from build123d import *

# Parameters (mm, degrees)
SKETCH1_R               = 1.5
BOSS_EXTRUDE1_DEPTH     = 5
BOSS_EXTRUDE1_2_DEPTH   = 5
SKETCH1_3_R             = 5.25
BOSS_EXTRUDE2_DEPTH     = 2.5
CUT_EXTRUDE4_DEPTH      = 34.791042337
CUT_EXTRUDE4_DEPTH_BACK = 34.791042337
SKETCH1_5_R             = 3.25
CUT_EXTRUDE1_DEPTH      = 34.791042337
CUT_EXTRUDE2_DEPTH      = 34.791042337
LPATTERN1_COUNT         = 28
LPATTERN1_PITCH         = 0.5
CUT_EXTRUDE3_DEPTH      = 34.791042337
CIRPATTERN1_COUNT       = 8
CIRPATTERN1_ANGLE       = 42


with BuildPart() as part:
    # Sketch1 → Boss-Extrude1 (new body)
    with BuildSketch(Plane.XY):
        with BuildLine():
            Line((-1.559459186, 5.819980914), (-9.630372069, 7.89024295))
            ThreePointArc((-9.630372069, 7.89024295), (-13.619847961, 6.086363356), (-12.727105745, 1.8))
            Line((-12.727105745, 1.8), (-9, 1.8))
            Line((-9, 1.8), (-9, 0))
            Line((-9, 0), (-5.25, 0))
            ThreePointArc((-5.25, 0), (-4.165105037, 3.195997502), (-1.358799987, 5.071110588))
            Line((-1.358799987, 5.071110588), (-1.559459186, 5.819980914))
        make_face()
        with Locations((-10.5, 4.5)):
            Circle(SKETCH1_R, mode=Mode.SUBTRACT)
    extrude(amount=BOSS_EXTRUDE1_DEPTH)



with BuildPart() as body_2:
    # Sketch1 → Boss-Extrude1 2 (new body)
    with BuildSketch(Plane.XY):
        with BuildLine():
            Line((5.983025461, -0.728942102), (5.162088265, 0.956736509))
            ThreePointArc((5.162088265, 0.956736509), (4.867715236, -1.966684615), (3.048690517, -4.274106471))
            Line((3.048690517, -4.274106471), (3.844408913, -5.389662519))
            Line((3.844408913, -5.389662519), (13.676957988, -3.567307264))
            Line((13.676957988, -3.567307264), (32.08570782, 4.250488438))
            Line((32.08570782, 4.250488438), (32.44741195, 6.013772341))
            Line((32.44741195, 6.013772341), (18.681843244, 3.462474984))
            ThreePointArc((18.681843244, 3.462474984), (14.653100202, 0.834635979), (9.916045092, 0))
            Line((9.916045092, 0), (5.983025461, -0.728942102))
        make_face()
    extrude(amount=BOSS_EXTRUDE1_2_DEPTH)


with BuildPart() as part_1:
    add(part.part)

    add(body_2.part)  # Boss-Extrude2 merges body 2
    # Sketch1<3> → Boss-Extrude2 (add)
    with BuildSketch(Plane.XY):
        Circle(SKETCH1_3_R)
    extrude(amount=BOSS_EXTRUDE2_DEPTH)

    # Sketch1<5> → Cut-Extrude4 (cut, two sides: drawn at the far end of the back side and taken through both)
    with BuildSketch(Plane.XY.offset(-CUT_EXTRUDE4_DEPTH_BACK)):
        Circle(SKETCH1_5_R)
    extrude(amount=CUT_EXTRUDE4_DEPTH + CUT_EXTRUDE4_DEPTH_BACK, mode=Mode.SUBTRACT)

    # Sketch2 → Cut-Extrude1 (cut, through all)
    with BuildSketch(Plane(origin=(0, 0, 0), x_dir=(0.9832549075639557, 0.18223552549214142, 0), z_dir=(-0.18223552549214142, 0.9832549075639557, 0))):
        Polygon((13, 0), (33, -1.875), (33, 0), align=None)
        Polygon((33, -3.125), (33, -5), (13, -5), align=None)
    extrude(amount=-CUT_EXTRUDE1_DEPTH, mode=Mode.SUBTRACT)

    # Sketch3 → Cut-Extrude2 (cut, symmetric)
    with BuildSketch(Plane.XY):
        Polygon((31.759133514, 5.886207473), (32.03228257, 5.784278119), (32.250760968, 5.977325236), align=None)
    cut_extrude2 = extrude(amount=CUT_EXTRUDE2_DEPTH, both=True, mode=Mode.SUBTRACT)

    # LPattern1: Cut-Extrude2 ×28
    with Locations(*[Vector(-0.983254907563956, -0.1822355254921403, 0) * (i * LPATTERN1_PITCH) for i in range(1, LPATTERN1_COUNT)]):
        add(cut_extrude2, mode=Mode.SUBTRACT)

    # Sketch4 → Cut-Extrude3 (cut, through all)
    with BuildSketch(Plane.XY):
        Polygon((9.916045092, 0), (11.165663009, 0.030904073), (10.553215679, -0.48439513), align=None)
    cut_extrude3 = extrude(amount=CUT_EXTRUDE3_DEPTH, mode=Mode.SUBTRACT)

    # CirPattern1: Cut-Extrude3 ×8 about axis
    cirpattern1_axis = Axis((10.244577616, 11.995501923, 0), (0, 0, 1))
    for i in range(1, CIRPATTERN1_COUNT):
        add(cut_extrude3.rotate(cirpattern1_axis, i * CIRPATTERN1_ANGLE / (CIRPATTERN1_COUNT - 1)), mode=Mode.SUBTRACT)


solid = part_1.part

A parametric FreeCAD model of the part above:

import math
import FreeCAD as App
import Part
import Sketcher
Q = App.Units.Quantity


def add_polygon(sketch, points):
    """Adds a closed chain of lines whose ends are joined by coincident constraints."""
    first, n = sketch.GeometryCount, len(points)
    for a, b in zip(points, points[1:] + points[:1]):
        sketch.addGeometry(Part.LineSegment(App.Vector(*a, 0), App.Vector(*b, 0)), False)
    for i in range(n):
        sketch.addConstraint(Sketcher.Constraint("Coincident", first + i, 2, first + (i + 1) % n, 1))

doc = App.newDocument("Part")
body = doc.addObject("PartDesign::Body", "Body")

# Sketch on XY plane
sketch1 = body.newObject("Sketcher::SketchObject", "Sketch")
sketch1.AttachmentSupport = (doc.getObject("XY_Plane"), [""])
sketch1.MapMode = "FlatFace"
sketch1.addGeometry(Part.LineSegment(App.Vector(-1.559459, 5.819981, 0), App.Vector(-9.630372, 7.890243, 0)), False)
sketch1.addGeometry(Part.ArcOfCircle(Part.Circle(App.Vector(-10.5, 4.5, 0), App.Vector(0, 0, 1), 3.5), math.radians(75.613295), math.radians(230.482347)), False)
sketch1.addGeometry(Part.LineSegment(App.Vector(-12.727106, 1.8, 0), App.Vector(-9, 1.8, 0)), False)
sketch1.addGeometry(Part.LineSegment(App.Vector(-9, 1.8, 0), App.Vector(-9, 0, 0)), False)
sketch1.addGeometry(Part.LineSegment(App.Vector(-9, 0, 0), App.Vector(-5.25, 0, 0)), False)
sketch1.addGeometry(Part.ArcOfCircle(Part.Circle(App.Vector(0, 0, 0), App.Vector(0, 0, 1), 5.25), math.radians(105), math.radians(180)), False)
sketch1.addGeometry(Part.LineSegment(App.Vector(-1.3588, 5.071111, 0), App.Vector(-1.559459, 5.819981, 0)), False)
sketch1.addGeometry(Part.Circle(App.Vector(-10.5, 4.5, 0), App.Vector(0, 0, 1), 1.5), False)
sketch1.addConstraint(Sketcher.Constraint("Tangent", 0, 2, 1, 1))
sketch1.addConstraint(Sketcher.Constraint("Coincident", 1, 2, 2, 1))
sketch1.addConstraint(Sketcher.Constraint("Coincident", 2, 2, 3, 1))
sketch1.addConstraint(Sketcher.Constraint("Coincident", 3, 2, 4, 1))
sketch1.addConstraint(Sketcher.Constraint("Coincident", 4, 2, 5, 2))
sketch1.addConstraint(Sketcher.Constraint("Coincident", 5, 1, 6, 1))
sketch1.addConstraint(Sketcher.Constraint("Coincident", 6, 2, 0, 1))
sketch1.addConstraint(Sketcher.Constraint("Horizontal", 2))
sketch1.addConstraint(Sketcher.Constraint("Vertical", 3))
sketch1.addConstraint(Sketcher.Constraint("Horizontal", 4))
sketch1.addConstraint(Sketcher.Constraint("Coincident", 5, 3, -1, 1))
sketch1.addConstraint(Sketcher.Constraint("Coincident", 7, 3, 1, 3))
sketch1.addConstraint(Sketcher.Constraint("PointOnObject", 3, 2, -1))
sketch1.addConstraint(Sketcher.Constraint("Diameter", 7, 3.0))
sketch1.addConstraint(Sketcher.Constraint("Radius", 1, 3.5))
sketch1.addConstraint(Sketcher.Constraint("Angle", 6, Q("105 deg")))
sketch1.addConstraint(Sketcher.Constraint("Radius", 5, 5.25))
sketch1.addConstraint(Sketcher.Constraint("DistanceY", 3, 2, 3, 1, 1.8))
sketch1.addConstraint(Sketcher.Constraint("DistanceX", 2, 2, -1, 1, 9.0))
sketch1.addConstraint(Sketcher.Constraint("DistanceX", 1, 3, -1, 1, 10.5))
sketch1.addConstraint(Sketcher.Constraint("DistanceY", -1, 1, 1, 3, 4.5))
sketch1.addConstraint(Sketcher.Constraint("DistanceX", 5, 1, -1, 1, 1.3588))
sketch1.addConstraint(Sketcher.Constraint("DistanceX", 6, 2, -1, 1, 1.559459))
pad1 = body.newObject("PartDesign::Pad", "Pad")
pad1.Profile = sketch1
pad1.Length = 5
body2 = doc.addObject("PartDesign::Body", "Body001")

# Sketch on XY plane
sketch2 = body2.newObject("Sketcher::SketchObject", "Sketch001")
sketch2.AttachmentSupport = (doc.getObject("XY_Plane001"), [""])
sketch2.MapMode = "FlatFace"
sketch2.addGeometry(Part.LineSegment(App.Vector(5.983025, -0.728942, 0), App.Vector(5.162088, 0.956737, 0)), False)
sketch2.addGeometry(Part.ArcOfCircle(Part.Circle(App.Vector(0, 0, 0), App.Vector(0, 0, 1), 5.25), math.radians(-54.5), math.radians(10.5)), False)
sketch2.addGeometry(Part.LineSegment(App.Vector(3.048691, -4.274106, 0), App.Vector(3.844409, -5.389663, 0)), False)
sketch2.addGeometry(Part.LineSegment(App.Vector(3.844409, -5.389663, 0), App.Vector(13.676958, -3.567307, 0)), False)
sketch2.addGeometry(Part.LineSegment(App.Vector(13.676958, -3.567307, 0), App.Vector(32.085708, 4.250488, 0)), False)
sketch2.addGeometry(Part.LineSegment(App.Vector(32.085708, 4.250488, 0), App.Vector(32.447412, 6.013772, 0)), False)
sketch2.addGeometry(Part.LineSegment(App.Vector(32.447412, 6.013772, 0), App.Vector(18.681843, 3.462475, 0)), False)
sketch2.addGeometry(Part.ArcOfCircle(Part.Circle(App.Vector(10.244578, 11.995502, 0), App.Vector(0, 0, 1), 12), math.radians(-91.568823), math.radians(-45.32331)), False)
sketch2.addGeometry(Part.LineSegment(App.Vector(9.916045, 0, 0), App.Vector(5.983025, -0.728942, 0)), False)
sketch2.addConstraint(Sketcher.Constraint("Coincident", 0, 2, 1, 2))
sketch2.addConstraint(Sketcher.Constraint("Coincident", 1, 1, 2, 1))
sketch2.addConstraint(Sketcher.Constraint("Coincident", 2, 2, 3, 1))
sketch2.addConstraint(Sketcher.Constraint("Coincident", 3, 2, 4, 1))
sketch2.addConstraint(Sketcher.Constraint("Coincident", 4, 2, 5, 1))
sketch2.addConstraint(Sketcher.Constraint("Coincident", 5, 2, 6, 1))
sketch2.addConstraint(Sketcher.Constraint("Coincident", 6, 2, 7, 2))
sketch2.addConstraint(Sketcher.Constraint("Coincident", 7, 1, 8, 1))
sketch2.addConstraint(Sketcher.Constraint("Coincident", 8, 2, 0, 1))
sketch2.addConstraint(Sketcher.Constraint("Coincident", 1, 3, -1, 1))
sketch2.addConstraint(Sketcher.Constraint("PointOnObject", 7, 1, -1))
sketch2.addConstraint(Sketcher.Constraint("Parallel", 3, 6))
sketch2.addConstraint(Sketcher.Constraint("Parallel", 6, 8))
sketch2.addConstraint(Sketcher.Constraint("Radius", 7, 12.0))
sketch2.addConstraint(Sketcher.Constraint("Radius", 1, 5.25))
sketch2.addConstraint(Sketcher.Constraint("Distance", 3, 10.0))
sketch2.addConstraint(Sketcher.Constraint("Distance", 4, 20.0))
sketch2.addConstraint(Sketcher.Constraint("Distance", 6, 14.0))
sketch2.addConstraint(Sketcher.Constraint("Distance", 8, 4.0))
sketch2.addConstraint(Sketcher.Constraint("Angle", 2, Q("-54.5 deg")))
sketch2.addConstraint(Sketcher.Constraint("Angle", 3, Q("10.5 deg")))
sketch2.addConstraint(Sketcher.Constraint("Distance", 5, 1.8))
sketch2.addConstraint(Sketcher.Constraint("DistanceY", -1, 1, 7, 3, 11.995502))
sketch2.addConstraint(Sketcher.Constraint("DistanceY", 2, 2, 0, 2, 6.346399))
sketch2.addConstraint(Sketcher.Constraint("DistanceY", 1, 1, 3, 2, 0.706799))
sketch2.addConstraint(Sketcher.Constraint("DistanceX", 2, 2, 4, 2, 28.241299))
sketch2.addConstraint(Sketcher.Constraint("DistanceX", 7, 1, 6, 2, 8.765798))
sketch2.addConstraint(Sketcher.Constraint("DistanceX", -1, 1, 0, 2, 5.162088))
pad2 = body2.newObject("PartDesign::Pad", "Pad001")
pad2.Profile = sketch2
pad2.Length = 5
body.AllowCompound = True
doc.recompute()

boolean = body.newObject("PartDesign::Boolean", "Boolean")
boolean.Type = "Fuse"
boolean.addObjects([body2])

# Sketch on XY plane
sketch3 = body.newObject("Sketcher::SketchObject", "Sketch002")
sketch3.AttachmentSupport = (doc.getObject("XY_Plane"), [""])
sketch3.MapMode = "FlatFace"
sketch3.addGeometry(Part.Circle(App.Vector(0, 0, 0), App.Vector(0, 0, 1), 5.25), False)
sketch3.addConstraint(Sketcher.Constraint("Coincident", 0, 3, -1, 1))
sketch3.addConstraint(Sketcher.Constraint("Diameter", 0, 10.5))
pad3 = body.newObject("PartDesign::Pad", "Pad002")
pad3.Profile = sketch3
pad3.Length = 2.5

# Sketch on XY plane
sketch4 = body.newObject("Sketcher::SketchObject", "Sketch003")
sketch4.AttachmentSupport = (doc.getObject("XY_Plane"), [""])
sketch4.MapMode = "FlatFace"
sketch4.addGeometry(Part.Circle(App.Vector(0, 0, 0), App.Vector(0, 0, 1), 3.25), False)
sketch4.addConstraint(Sketcher.Constraint("Coincident", 0, 3, -1, 1))
sketch4.addConstraint(Sketcher.Constraint("Diameter", 0, 6.5))
pocket1 = body.newObject("PartDesign::Pocket", "Pocket")
pocket1.Profile = sketch4
pocket1.Type = "ThroughAll"
pocket1.Midplane = True

# Sketch on an angled plane
sketch5 = body.newObject("Sketcher::SketchObject", "Sketch004")
sketch5.Placement = App.Placement(App.Vector(0, 0, 0), App.Rotation(App.Vector(0.983254908, 0.182235525, 0), App.Vector(0, 0, -1.000000001), App.Vector(-0.182235525, 0.983254908, 0), "ZXY"))
add_polygon(sketch5, [(13, 0), (33, -1.875), (33, 0)])  # lines 0-2
add_polygon(sketch5, [(33, -5), (33, -3.125), (13, -5)])  # lines 3-5
sketch5.addConstraint(Sketcher.Constraint("Vertical", 1))
sketch5.addConstraint(Sketcher.Constraint("Horizontal", 2))
sketch5.addConstraint(Sketcher.Constraint("Vertical", 3))
sketch5.addConstraint(Sketcher.Constraint("Horizontal", 5))
sketch5.addConstraint(Sketcher.Constraint("PointOnObject", 1, 2, -1))
sketch5.addConstraint(Sketcher.Constraint("Vertical", 1, 2, 3, 2))
sketch5.addConstraint(Sketcher.Constraint("Vertical", 2, 2, 4, 2))
sketch5.addConstraint(Sketcher.Constraint("Equal", 1, 3))
sketch5.addConstraint(Sketcher.Constraint("DistanceX", 2, 2, 2, 1, 20.0))
sketch5.addConstraint(Sketcher.Constraint("DistanceX", -1, 1, 0, 2, 33.0))
sketch5.addConstraint(Sketcher.Constraint("DistanceY", 4, 2, -1, 1, 5.0))
sketch5.addConstraint(Sketcher.Constraint("DistanceY", 1, 1, 1, 2, 1.875))
pocket2 = body.newObject("PartDesign::Pocket", "Pocket001")
pocket2.Profile = sketch5
pocket2.Type = "ThroughAll"

# Sketch on XY plane
sketch6 = body.newObject("Sketcher::SketchObject", "Sketch005")
sketch6.AttachmentSupport = (doc.getObject("XY_Plane"), [""])
sketch6.MapMode = "FlatFace"
add_polygon(sketch6, [(31.759134, 5.886207), (32.032283, 5.784278), (32.250761, 5.977325)])  # lines 0-2
sketch6.addConstraint(Sketcher.Constraint("Equal", 0, 1))
sketch6.addConstraint(Sketcher.Constraint("Angle", 2, Q("-169.5 deg")))
sketch6.addConstraint(Sketcher.Constraint("Distance", 2, 0.5))
sketch6.addConstraint(Sketcher.Constraint("DistanceY", -1, 1, 0, 2, 5.784278))
sketch6.addConstraint(Sketcher.Constraint("DistanceX", -1, 1, 1, 2, 32.250761))
sketch6.addConstraint(Sketcher.Constraint("DistanceX", 0, 2, 1, 2, 0.218478))
pocket3 = body.newObject("PartDesign::Pocket", "Pocket002")
pocket3.Profile = sketch6
pocket3.Length = 69.582085
pocket3.Midplane = True
doc.recompute()

datumline = body.newObject("PartDesign::Line", "DatumLine")
datumline.Placement = App.Placement(App.Vector(0, 0, 0), App.Rotation(App.Vector(0, 0, 1), App.Vector(-0.983254907, -0.182235526, 0)))
linearpattern = body.newObject("PartDesign::LinearPattern", "LinearPattern")
linearpattern.Originals = [pocket3]
linearpattern.Direction = (datumline, [""])
linearpattern.Mode = "offset"
linearpattern.Offset = 0.5
linearpattern.Occurrences = 28
body.Tip = linearpattern

# Sketch on XY plane
sketch7 = body.newObject("Sketcher::SketchObject", "Sketch006")
sketch7.AttachmentSupport = (doc.getObject("XY_Plane"), [""])
sketch7.MapMode = "FlatFace"
add_polygon(sketch7, [(11.165663, 0.030904), (9.916045, 0), (10.553216, -0.484395)])  # lines 0-2
sketch7.addConstraint(Sketcher.Constraint("PointOnObject", 0, 2, -1))
sketch7.addConstraint(Sketcher.Constraint("Equal", 1, 2))
sketch7.addConstraint(Sketcher.Constraint("Distance", 0, 1.25))
sketch7.addConstraint(Sketcher.Constraint("DistanceY", 1, 2, 2, 2, 0.515299))
sketch7.addConstraint(Sketcher.Constraint("Distance", 1, 0.800391))
sketch7.addConstraint(Sketcher.Constraint("DistanceX", -1, 1, 0, 2, 9.916045))
pocket4 = body.newObject("PartDesign::Pocket", "Pocket003")
pocket4.Profile = sketch7
pocket4.Type = "ThroughAll"
pocket4.Reversed = True
doc.recompute()

datumline2 = body.newObject("PartDesign::Line", "DatumLine001")
datumline2.Placement = App.Placement(App.Vector(10.244578, 11.995502, 0), App.Rotation(App.Vector(0, 0, 1), App.Vector(0, 0, 1)))
polarpattern = body.newObject("PartDesign::PolarPattern", "PolarPattern")
polarpattern.Originals = [pocket4]
polarpattern.Axis = (datumline2, [""])
polarpattern.Angle = 42
polarpattern.Occurrences = 8
body.Tip = polarpattern

doc.recompute()
